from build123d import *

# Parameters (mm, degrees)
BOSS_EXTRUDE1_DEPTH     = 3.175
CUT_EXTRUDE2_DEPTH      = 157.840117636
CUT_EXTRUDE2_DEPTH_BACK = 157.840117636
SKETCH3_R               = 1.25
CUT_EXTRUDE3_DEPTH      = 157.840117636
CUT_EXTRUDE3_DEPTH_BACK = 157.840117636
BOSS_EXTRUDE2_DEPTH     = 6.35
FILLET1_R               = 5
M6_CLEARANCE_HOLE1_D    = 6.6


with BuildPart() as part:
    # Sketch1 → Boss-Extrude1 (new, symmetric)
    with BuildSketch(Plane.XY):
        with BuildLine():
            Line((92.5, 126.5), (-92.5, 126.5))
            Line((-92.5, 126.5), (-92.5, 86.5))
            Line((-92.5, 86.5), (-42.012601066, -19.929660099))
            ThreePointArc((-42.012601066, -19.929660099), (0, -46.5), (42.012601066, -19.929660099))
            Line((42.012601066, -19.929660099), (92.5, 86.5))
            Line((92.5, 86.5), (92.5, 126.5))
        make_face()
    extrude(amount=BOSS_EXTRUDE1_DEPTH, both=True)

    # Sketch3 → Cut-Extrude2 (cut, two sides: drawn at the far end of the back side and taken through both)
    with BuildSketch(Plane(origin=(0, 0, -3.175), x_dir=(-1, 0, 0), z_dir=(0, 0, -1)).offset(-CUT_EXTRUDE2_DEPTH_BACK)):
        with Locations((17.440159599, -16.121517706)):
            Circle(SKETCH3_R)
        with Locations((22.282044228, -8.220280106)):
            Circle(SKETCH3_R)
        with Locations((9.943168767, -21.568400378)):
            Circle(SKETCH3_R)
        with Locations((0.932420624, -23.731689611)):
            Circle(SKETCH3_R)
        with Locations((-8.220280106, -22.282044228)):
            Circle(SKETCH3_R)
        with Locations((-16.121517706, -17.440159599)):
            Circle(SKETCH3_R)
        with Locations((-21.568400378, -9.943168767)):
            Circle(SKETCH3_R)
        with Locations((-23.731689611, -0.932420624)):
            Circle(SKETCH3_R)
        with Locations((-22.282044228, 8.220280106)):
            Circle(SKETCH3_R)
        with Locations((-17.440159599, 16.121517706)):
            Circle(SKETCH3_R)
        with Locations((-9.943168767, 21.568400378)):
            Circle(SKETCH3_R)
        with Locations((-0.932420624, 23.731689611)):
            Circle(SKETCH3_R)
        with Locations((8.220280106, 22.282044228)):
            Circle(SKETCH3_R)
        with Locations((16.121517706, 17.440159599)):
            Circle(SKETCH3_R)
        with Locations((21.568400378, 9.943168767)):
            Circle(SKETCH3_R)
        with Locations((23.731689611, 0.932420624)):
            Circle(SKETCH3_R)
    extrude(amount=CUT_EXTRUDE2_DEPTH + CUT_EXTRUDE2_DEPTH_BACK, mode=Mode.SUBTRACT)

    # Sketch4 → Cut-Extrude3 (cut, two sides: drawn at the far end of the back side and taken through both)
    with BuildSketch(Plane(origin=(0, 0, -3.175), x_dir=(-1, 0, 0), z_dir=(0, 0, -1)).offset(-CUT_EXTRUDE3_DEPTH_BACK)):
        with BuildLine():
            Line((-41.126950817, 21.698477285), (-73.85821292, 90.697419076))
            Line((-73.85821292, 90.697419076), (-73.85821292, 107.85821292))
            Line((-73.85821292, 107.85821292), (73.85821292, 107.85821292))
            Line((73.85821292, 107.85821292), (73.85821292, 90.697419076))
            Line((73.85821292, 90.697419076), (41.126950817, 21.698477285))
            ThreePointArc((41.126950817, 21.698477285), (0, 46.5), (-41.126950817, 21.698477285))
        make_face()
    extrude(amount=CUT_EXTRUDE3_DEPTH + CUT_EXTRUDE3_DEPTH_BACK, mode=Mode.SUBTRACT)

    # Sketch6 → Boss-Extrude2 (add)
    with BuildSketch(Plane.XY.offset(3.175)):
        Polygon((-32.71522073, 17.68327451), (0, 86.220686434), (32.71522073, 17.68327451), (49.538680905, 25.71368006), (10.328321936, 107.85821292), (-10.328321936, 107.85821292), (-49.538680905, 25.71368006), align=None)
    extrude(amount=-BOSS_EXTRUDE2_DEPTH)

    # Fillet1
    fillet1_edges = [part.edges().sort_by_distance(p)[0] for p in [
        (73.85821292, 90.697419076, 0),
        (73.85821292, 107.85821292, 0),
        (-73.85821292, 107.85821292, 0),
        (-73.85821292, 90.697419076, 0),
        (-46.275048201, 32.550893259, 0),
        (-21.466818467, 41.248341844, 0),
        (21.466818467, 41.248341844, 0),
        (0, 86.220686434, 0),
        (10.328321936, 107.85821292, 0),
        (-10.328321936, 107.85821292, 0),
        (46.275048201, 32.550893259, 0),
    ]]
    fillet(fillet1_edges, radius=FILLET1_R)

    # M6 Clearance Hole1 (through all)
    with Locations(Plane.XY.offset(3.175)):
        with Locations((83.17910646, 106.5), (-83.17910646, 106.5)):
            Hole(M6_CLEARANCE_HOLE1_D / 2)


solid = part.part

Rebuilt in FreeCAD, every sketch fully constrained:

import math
import FreeCAD as App
import Part
import Sketcher
from FreeCAD import Vector


def edges_at(feature, points):
    """Names of the edges that pass closest to the given points."""
    edges = feature.Shape.Edges
    near = lambda p: min(range(len(edges)), key=lambda i: edges[i].distToShape(Part.Vertex(*p))[0])
    return sorted({f"Edge{near(p) + 1}" for p in points})


def add_polygon(sketch, points):
    """Adds a closed chain of lines whose ends are joined by coincident constraints."""
    first, n = sketch.GeometryCount, len(points)
    for a, b in zip(points, points[1:] + points[:1]):
        sketch.addGeometry(Part.LineSegment(App.Vector(*a, 0), App.Vector(*b, 0)), False)
    for i in range(n):
        sketch.addConstraint(Sketcher.Constraint("Coincident", first + i, 2, first + (i + 1) % n, 1))

doc = App.newDocument("Part")
body = doc.addObject("PartDesign::Body", "Body")

# Sketch on XY plane
sketch1 = doc.addObject("Sketcher::SketchObject", "Sketch")
body.addObject(sketch1)
sketch1.AttachmentSupport = (doc.XY_Plane, [""])
sketch1.MapMode = "FlatFace"
sketch1.addGeometry(Part.LineSegment(Vector(92.5, 126.5, 0), Vector(-92.5, 126.5, 0)), False)
sketch1.addGeometry(Part.LineSegment(Vector(-92.5, 126.5, 0), Vector(-92.5, 86.5, 0)), False)
sketch1.addGeometry(Part.LineSegment(Vector(-92.5, 86.5, 0), Vector(-42.012601, -19.92966, 0)), False)
sketch1.addGeometry(Part.ArcOfCircle(Part.Circle(Vector(0, 0, 0), Vector(0, 0, 1), 46.5), math.radians(-154.621582), math.radians(-25.378418)), False)
sketch1.addGeometry(Part.LineSegment(Vector(42.012601, -19.92966, 0), Vector(92.5, 86.5, 0)), False)
sketch1.addGeometry(Part.LineSegment(Vector(92.5, 86.5, 0), Vector(92.5, 126.5, 0)), False)
sketch1.addConstraint(Sketcher.Constraint("Coincident", 0, 2, 1, 1))
sketch1.addConstraint(Sketcher.Constraint("Coincident", 1, 2, 2, 1))
sketch1.addConstraint(Sketcher.Constraint("Tangent", 2, 2, 3, 1))
sketch1.addConstraint(Sketcher.Constraint("Tangent", 3, 2, 4, 1))
sketch1.addConstraint(Sketcher.Constraint("Coincident", 4, 2, 5, 1))
sketch1.addConstraint(Sketcher.Constraint("Coincident", 5, 2, 0, 1))
sketch1.addConstraint(Sketcher.Constraint("Horizontal", 0))
sketch1.addConstraint(Sketcher.Constraint("Vertical", 1))
sketch1.addConstraint(Sketcher.Constraint("Vertical", 5))
sketch1.addConstraint(Sketcher.Constraint("Coincident", 3, 3, -1, 1))
sketch1.addConstraint(Sketcher.Constraint("Symmetric", 1, 2, 4, 2, -2))
sketch1.addConstraint(Sketcher.Constraint("Radius", 3, 46.5))
sketch1.addConstraint(Sketcher.Constraint("DistanceX", 0, 2, 0, 1, 185.0))
sketch1.addConstraint(Sketcher.Constraint("DistanceY", 1, 2, 1, 1, 40.0))
sketch1.addConstraint(Sketcher.Constraint("DistanceY", -1, 1, 0, 2, 126.5))
pad1 = doc.addObject("PartDesign::Pad", "Pad")
body.addObject(pad1)
pad1.Profile = sketch1
pad1.Length = 6.35
pad1.Midplane = True

# Sketch on XY plane
sketch2 = doc.addObject("Sketcher::SketchObject", "Sketch001")
body.addObject(sketch2)
sketch2.AttachmentSupport = (doc.XY_Plane, [""])
sketch2.MapMode = "FlatFace"
sketch2.AttachmentOffset = App.Placement(Vector(0, 0, -3.175), App.Rotation())
sketch2.addGeometry(Part.Circle(Vector(-17.44016, -16.121518, 0), Vector(0, 0, 1), 1.25), False)
sketch2.addGeometry(Part.Circle(Vector(-22.282044, -8.22028, 0), Vector(0, 0, 1), 1.25), False)
sketch2.addGeometry(Part.Circle(Vector(-9.943169, -21.5684, 0), Vector(0, 0, 1), 1.25), False)
sketch2.addGeometry(Part.Circle(Vector(-0.932421, -23.73169, 0), Vector(0, 0, 1), 1.25), False)
sketch2.addGeometry(Part.Circle(Vector(8.22028, -22.282044, 0), Vector(0, 0, 1), 1.25), False)
sketch2.addGeometry(Part.Circle(Vector(16.121518, -17.44016, 0), Vector(0, 0, 1), 1.25), False)
sketch2.addGeometry(Part.Circle(Vector(21.5684, -9.943169, 0), Vector(0, 0, 1), 1.25), False)
sketch2.addGeometry(Part.Circle(Vector(23.73169, -0.932421, 0), Vector(0, 0, 1), 1.25), False)
sketch2.addGeometry(Part.Circle(Vector(22.282044, 8.22028, 0), Vector(0, 0, 1), 1.25), False)
sketch2.addGeometry(Part.Circle(Vector(17.44016, 16.121518, 0), Vector(0, 0, 1), 1.25), False)
sketch2.addGeometry(Part.Circle(Vector(9.943169, 21.5684, 0), Vector(0, 0, 1), 1.25), False)
sketch2.addGeometry(Part.Circle(Vector(0.932421, 23.73169, 0), Vector(0, 0, 1), 1.25), False)
sketch2.addGeometry(Part.Circle(Vector(-8.22028, 22.282044, 0), Vector(0, 0, 1), 1.25), False)
sketch2.addGeometry(Part.Circle(Vector(-16.121518, 17.44016, 0), Vector(0, 0, 1), 1.25), False)
sketch2.addGeometry(Part.Circle(Vector(-21.5684, 9.943169, 0), Vector(0, 0, 1), 1.25), False)
sketch2.addGeometry(Part.Circle(Vector(-23.73169, 0.932421, 0), Vector(0, 0, 1), 1.25), False)
sketch2.addConstraint(Sketcher.Constraint("Equal", 0, 1))
sketch2.addConstraint(Sketcher.Constraint("Equal", 1, 2))
sketch2.addConstraint(Sketcher.Constraint("Equal", 2, 3))
sketch2.addConstraint(Sketcher.Constraint("Equal", 3, 4))
sketch2.addConstraint(Sketcher.Constraint("Equal", 4, 5))
sketch2.addConstraint(Sketcher.Constraint("Equal", 5, 6))
sketch2.addConstraint(Sketcher.Constraint("Equal", 6, 7))
sketch2.addConstraint(Sketcher.Constraint("Equal", 7, 8))
sketch2.addConstraint(Sketcher.Constraint("Equal", 8, 9))
sketch2.addConstraint(Sketcher.Constraint("Equal", 9, 10))
sketch2.addConstraint(Sketcher.Constraint("Equal", 10, 11))
sketch2.addConstraint(Sketcher.Constraint("Equal", 11, 12))
sketch2.addConstraint(Sketcher.Constraint("Equal", 12, 13))
sketch2.addConstraint(Sketcher.Constraint("Equal", 13, 14))
sketch2.addConstraint(Sketcher.Constraint("Equal", 14, 15))
sketch2.addConstraint(Sketcher.Constraint("Symmetric", 1, 3, 8, 3, -1, 1))
sketch2.addConstraint(Sketcher.Constraint("Symmetric", 0, 3, 9, 3, -1, 1))
sketch2.addConstraint(Sketcher.Constraint("Symmetric", 2, 3, 10, 3, -1, 1))
sketch2.addConstraint(Sketcher.Constraint("Symmetric", 3, 3, 11, 3, -1, 1))
sketch2.addConstraint(Sketcher.Constraint("Symmetric", 4, 3, 12, 3, -1, 1))
sketch2.addConstraint(Sketcher.Constraint("Symmetric", 5, 3, 13, 3, -1, 1))
sketch2.addConstraint(Sketcher.Constraint("Symmetric", 6, 3, 14, 3, -1, 1))
sketch2.addConstraint(Sketcher.Constraint("Symmetric", 7, 3, 15, 3, -1, 1))
sketch2.addConstraint(Sketcher.Constraint("Diameter", 0, 2.5))
sketch2.addConstraint(Sketcher.Constraint("DistanceY", 2, 3, -1, 1, 21.5684))
sketch2.addConstraint(Sketcher.Constraint("DistanceX", -1, 1, 6, 3, 21.5684))
sketch2.addConstraint(Sketcher.Constraint("DistanceX", 3, 3, 4, 3, 9.152701))
sketch2.addConstraint(Sketcher.Constraint("DistanceY", 7, 3, 8, 3, 9.152701))
sketch2.addConstraint(Sketcher.Constraint("DistanceX", 0, 3, -1, 1, 17.44016))
sketch2.addConstraint(Sketcher.Constraint("DistanceY", 1, 3, -1, 1, 8.22028))
sketch2.addConstraint(Sketcher.Constraint("DistanceX", 2, 3, -1, 1, 9.943169))
sketch2.addConstraint(Sketcher.Constraint("DistanceX", 3, 3, -1, 1, 0.932421))
sketch2.addConstraint(Sketcher.Constraint("DistanceY", 3, 3, -1, 1, 23.73169))
sketch2.addConstraint(Sketcher.Constraint("DistanceY", 5, 3, -1, 1, 17.44016))
sketch2.addConstraint(Sketcher.Constraint("DistanceY", 6, 3, -1, 1, 9.943169))
sketch2.addConstraint(Sketcher.Constraint("DistanceX", -1, 1, 7, 3, 23.73169))
sketch2.addConstraint(Sketcher.Constraint("DistanceY", 3, 3, 0, 3, 7.610172))
sketch2.addConstraint(Sketcher.Constraint("DistanceX", 3, 3, 5, 3, 17.053938))
sketch2.addConstraint(Sketcher.Constraint("DistanceX", 1, 3, 5, 3, 38.403562))
sketch2.addConstraint(Sketcher.Constraint("DistanceY", 4, 3, 9, 3, 38.403562))
pocket1 = doc.addObject("PartDesign::Pocket", "Pocket")
body.addObject(pocket1)
pocket1.Profile = sketch2
pocket1.Type = "ThroughAll"
pocket1.Midplane = True

# Sketch on XY plane
sketch3 = doc.addObject("Sketcher::SketchObject", "Sketch002")
body.addObject(sketch3)
sketch3.AttachmentSupport = (doc.XY_Plane, [""])
sketch3.MapMode = "FlatFace"
sketch3.AttachmentOffset = App.Placement(Vector(0, 0, -3.175), App.Rotation())
sketch3.addGeometry(Part.LineSegment(Vector(73.858213, 90.697419, 0), Vector(41.126951, 21.698477, 0)), False)
sketch3.addGeometry(Part.ArcOfCircle(Part.Circle(Vector(0, 0, 0), Vector(0, 0, 1), 46.5), math.radians(27.816018), math.radians(152.183982)), False)
sketch3.addGeometry(Part.LineSegment(Vector(-41.126951, 21.698477, 0), Vector(-73.858213, 90.697419, 0)), False)
sketch3.addGeometry(Part.LineSegment(Vector(-73.858213, 90.697419, 0), Vector(-73.858213, 107.858213, 0)), False)
sketch3.addGeometry(Part.LineSegment(Vector(-73.858213, 107.858213, 0), Vector(73.858213, 107.858213, 0)), False)
sketch3.addGeometry(Part.LineSegment(Vector(73.858213, 107.858213, 0), Vector(73.858213, 90.697419, 0)), False)
sketch3.addConstraint(Sketcher.Constraint("Coincident", 0, 2, 1, 1))
sketch3.addConstraint(Sketcher.Constraint("Coincident", 1, 2, 2, 1))
sketch3.addConstraint(Sketcher.Constraint("Coincident", 2, 2, 3, 1))
sketch3.addConstraint(Sketcher.Constraint("Coincident", 3, 2, 4, 1))
sketch3.addConstraint(Sketcher.Constraint("Coincident", 4, 2, 5, 1))
sketch3.addConstraint(Sketcher.Constraint("Coincident", 5, 2, 0, 1))
sketch3.addConstraint(Sketcher.Constraint("Vertical", 3))
sketch3.addConstraint(Sketcher.Constraint("Horizontal", 4))
sketch3.addConstraint(Sketcher.Constraint("Vertical", 5))
sketch3.addConstraint(Sketcher.Constraint("Coincident", 1, 3, -1, 1))
sketch3.addConstraint(Sketcher.Constraint("Symmetric", 2, 2, 5, 2, -2))
sketch3.addConstraint(Sketcher.Constraint("Horizontal", 0, 2, 1, 2))
sketch3.addConstraint(Sketcher.Constraint("Radius", 1, 46.5))
sketch3.addConstraint(Sketcher.Constraint("DistanceX", 1, 2, 0, 2, 82.253902))
sketch3.addConstraint(Sketcher.Constraint("DistanceX", 4, 1, 4, 2, 147.716426))
sketch3.addConstraint(Sketcher.Constraint("DistanceY", 3, 1, 3, 2, 17.160794))
sketch3.addConstraint(Sketcher.Constraint("DistanceY", -1, 1, 2, 2, 90.697419))
pocket2 = doc.addObject("PartDesign::Pocket", "Pocket001")
body.addObject(pocket2)
pocket2.Profile = sketch3
pocket2.Type = "ThroughAll"
pocket2.Midplane = True

# Sketch on XY plane
sketch4 = doc.addObject("Sketcher::SketchObject", "Sketch003")
body.addObject(sketch4)
sketch4.AttachmentSupport = (doc.XY_Plane, [""])
sketch4.MapMode = "FlatFace"
sketch4.AttachmentOffset = App.Placement(Vector(0, 0, 3.175), App.Rotation())
add_polygon(sketch4, [(-32.715221, 17.683275), (0, 86.220686), (32.715221, 17.683275), (49.538681, 25.71368), (10.328322, 107.858213), (-10.328322, 107.858213), (-49.538681, 25.71368)])  # lines 0-6
sketch4.addConstraint(Sketcher.Constraint("Horizontal", 4))
sketch4.addConstraint(Sketcher.Constraint("Symmetric", 2, 2, 5, 2, -2))
sketch4.addConstraint(Sketcher.Constraint("Symmetric", 1, 2, 6, 2, -2))
sketch4.addConstraint(Sketcher.Constraint("PointOnObject", 0, 2, -2))
sketch4.addConstraint(Sketcher.Constraint("Perpendicular", 1, 2))
sketch4.addConstraint(Sketcher.Constraint("Perpendicular", 2, 3))
sketch4.addConstraint(Sketcher.Constraint("Parallel", 0, 5))
sketch4.addConstraint(Sketcher.Constraint("DistanceX", 3, 2, 1, 2, 22.386899))
sketch4.addConstraint(Sketcher.Constraint("DistanceX", 5, 2, 1, 2, 82.253902))
sketch4.addConstraint(Sketcher.Constraint("Distance", 0, 75.945128))
sketch4.addConstraint(Sketcher.Constraint("DistanceX", 4, 2, 4, 1, 20.656644))
sketch4.addConstraint(Sketcher.Constraint("DistanceY", -1, 1, 2, 2, 25.71368))
pad2 = doc.addObject("PartDesign::Pad", "Pad001")
body.addObject(pad2)
pad2.Profile = sketch4
pad2.Length = 6.35
pad2.Reversed = True
doc.recompute()

fillet = doc.addObject("PartDesign::Fillet", "Fillet")
body.addObject(fillet)
fillet.Base = (pad2, edges_at(pad2, [
    (73.858, 90.697, 0),
    (73.858, 107.858, 0),
    (-73.858, 107.858, 0),
    (-73.858, 90.697, 0),
    (-46.275, 32.551, 0),
    (-21.467, 41.248, 0),
    (21.467, 41.248, 0),
    (0, 86.221, 0),
    (10.328, 107.858, 0),
    (-10.328, 107.858, 0),
    (46.275, 32.551, 0),
]))
fillet.Radius = 5

# Sketch on XY plane
sketch5 = doc.addObject("Sketcher::SketchObject", "Sketch004")
body.addObject(sketch5)
sketch5.AttachmentSupport = (doc.XY_Plane, [""])
sketch5.MapMode = "FlatFace"
sketch5.AttachmentOffset = App.Placement(Vector(0, 0, 3.175), App.Rotation())
sketch5.addGeometry(Part.Circle(Vector(83.179106, 106.5, 0), Vector(0, 0, 1), 3.3), False)
sketch5.addGeometry(Part.Circle(Vector(-83.179106, 106.5, 0), Vector(0, 0, 1), 3.3), False)
sketch5.addConstraint(Sketcher.Constraint("Equal", 0, 1))
sketch5.addConstraint(Sketcher.Constraint("Symmetric", 0, 3, 1, 3, -2))
sketch5.addConstraint(Sketcher.Constraint("Diameter", 0, 6.6))
sketch5.addConstraint(Sketcher.Constraint("DistanceY", -1, 1, 0, 3, 106.5))
sketch5.addConstraint(Sketcher.Constraint("DistanceX", -1, 1, 0, 3, 83.179106))
doc.recompute()
hole = doc.addObject("PartDesign::Hole", "Hole")
body.addObject(hole)
hole.Profile = sketch5
hole.ThreadType = "None"
hole.Diameter = 6.6
hole.DepthType = "ThroughAll"

doc.recompute()
